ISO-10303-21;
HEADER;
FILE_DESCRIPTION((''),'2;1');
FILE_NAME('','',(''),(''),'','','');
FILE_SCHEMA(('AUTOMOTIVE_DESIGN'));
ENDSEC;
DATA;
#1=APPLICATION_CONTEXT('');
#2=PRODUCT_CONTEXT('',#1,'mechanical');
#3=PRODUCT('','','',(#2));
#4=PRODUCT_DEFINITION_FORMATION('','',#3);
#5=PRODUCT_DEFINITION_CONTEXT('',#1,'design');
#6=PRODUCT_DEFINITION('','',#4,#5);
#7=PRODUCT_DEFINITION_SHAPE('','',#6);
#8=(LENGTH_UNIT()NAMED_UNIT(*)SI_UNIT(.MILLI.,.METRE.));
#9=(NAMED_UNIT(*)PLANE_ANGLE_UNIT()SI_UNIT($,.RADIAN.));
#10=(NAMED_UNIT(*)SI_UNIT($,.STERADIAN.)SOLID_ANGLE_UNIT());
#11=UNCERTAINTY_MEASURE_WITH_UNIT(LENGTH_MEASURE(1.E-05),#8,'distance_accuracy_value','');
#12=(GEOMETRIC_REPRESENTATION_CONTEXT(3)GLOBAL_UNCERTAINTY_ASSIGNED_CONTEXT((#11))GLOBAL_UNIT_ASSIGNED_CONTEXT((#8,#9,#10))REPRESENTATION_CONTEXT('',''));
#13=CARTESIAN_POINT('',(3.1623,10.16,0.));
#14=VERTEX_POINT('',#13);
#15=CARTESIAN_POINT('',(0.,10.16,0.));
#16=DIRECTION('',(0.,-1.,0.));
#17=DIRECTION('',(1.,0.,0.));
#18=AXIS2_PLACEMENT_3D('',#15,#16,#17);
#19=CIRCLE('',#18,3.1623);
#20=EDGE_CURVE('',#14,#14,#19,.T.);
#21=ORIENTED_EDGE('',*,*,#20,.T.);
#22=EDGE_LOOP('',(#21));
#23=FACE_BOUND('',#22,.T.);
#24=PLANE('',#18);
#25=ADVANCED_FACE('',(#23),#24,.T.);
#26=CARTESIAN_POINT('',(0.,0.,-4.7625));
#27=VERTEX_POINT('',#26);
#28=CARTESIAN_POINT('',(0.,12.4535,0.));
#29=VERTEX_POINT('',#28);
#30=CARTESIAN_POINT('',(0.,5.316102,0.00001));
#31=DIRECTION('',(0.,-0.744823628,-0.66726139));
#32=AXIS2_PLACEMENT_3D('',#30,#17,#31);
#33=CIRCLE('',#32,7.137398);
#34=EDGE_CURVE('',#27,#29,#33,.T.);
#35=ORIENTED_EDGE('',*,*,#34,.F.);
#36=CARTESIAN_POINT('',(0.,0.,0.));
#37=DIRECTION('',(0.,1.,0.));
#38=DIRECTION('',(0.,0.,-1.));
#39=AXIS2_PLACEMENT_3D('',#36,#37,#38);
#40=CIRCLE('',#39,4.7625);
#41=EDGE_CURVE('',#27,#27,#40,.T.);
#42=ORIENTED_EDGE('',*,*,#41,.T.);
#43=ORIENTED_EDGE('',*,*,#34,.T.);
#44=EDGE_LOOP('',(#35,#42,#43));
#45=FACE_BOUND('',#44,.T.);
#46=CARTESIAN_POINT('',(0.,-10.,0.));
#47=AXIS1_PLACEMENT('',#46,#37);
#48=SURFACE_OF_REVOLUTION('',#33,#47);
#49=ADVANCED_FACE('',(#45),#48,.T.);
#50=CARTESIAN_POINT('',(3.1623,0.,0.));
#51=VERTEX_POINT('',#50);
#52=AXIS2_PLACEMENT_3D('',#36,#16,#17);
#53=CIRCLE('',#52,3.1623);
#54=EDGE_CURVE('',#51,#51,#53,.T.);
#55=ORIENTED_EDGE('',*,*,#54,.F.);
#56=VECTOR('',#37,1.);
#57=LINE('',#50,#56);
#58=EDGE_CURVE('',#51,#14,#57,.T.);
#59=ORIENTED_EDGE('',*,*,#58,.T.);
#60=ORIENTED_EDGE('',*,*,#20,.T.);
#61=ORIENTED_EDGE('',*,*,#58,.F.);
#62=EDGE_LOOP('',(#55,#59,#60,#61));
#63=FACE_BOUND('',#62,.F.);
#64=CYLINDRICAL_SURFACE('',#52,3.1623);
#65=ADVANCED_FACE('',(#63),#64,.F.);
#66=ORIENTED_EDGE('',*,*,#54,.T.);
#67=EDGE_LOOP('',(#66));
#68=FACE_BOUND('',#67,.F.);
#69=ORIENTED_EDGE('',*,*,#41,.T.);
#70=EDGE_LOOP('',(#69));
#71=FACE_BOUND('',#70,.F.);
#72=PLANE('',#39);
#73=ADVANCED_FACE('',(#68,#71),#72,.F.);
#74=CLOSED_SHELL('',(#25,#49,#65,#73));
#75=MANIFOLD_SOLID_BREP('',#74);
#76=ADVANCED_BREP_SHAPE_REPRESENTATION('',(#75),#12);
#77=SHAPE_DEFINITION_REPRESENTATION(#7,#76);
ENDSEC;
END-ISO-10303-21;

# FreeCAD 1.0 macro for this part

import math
import FreeCAD as App
import Part
import Sketcher
from FreeCAD import Vector
Q = App.Units.Quantity

doc = App.newDocument("Part")
params = doc.addObject("Spreadsheet::Sheet", "Params")
for row, (alias, value) in enumerate([
    ("sketch1_radius", "0.281 in"),
    ("sketch1_height", "0.1875 in"),
    ("revolution_angle", "360 deg"),
    ("sketch2_diameter", "0.249 in"),
    ("pocket1_length", "0.4 in"),
], start=1):
    params.set(f"A{row}", alias)
    params.set(f"B{row}", "=" + value)
    params.setAlias(f"B{row}", alias)

body = doc.addObject("PartDesign::Body", "Body")

sketch1 = body.newObject("Sketcher::SketchObject", "Sketch")
sketch1.AttachmentSupport = (doc.getObject("YZ_Plane"), [""])
sketch1.MapMode = "FlatFace"
sketch1.addGeometry(Part.LineSegment(Vector(12.4535, 0, 0), Vector(0, 0, 0)), False)
sketch1.addGeometry(Part.LineSegment(Vector(0, 0, 0), Vector(0, -4.7625, 0)), False)
sketch1.addGeometry(Part.ArcOfCircle(Part.Circle(Vector(5.3161, 0, 0), Vector(0, 0, 1), 7.137389), math.radians(-138.143998), math.radians(0)), False)
sketch1.addConstraint(Sketcher.Constraint("Coincident", 0, 2, 1, 1))
sketch1.addConstraint(Sketcher.Constraint("Coincident", 1, 2, 2, 1))
sketch1.addConstraint(Sketcher.Constraint("Coincident", 2, 2, 0, 1))
sketch1.addConstraint(Sketcher.Constraint("Horizontal", 0))
sketch1.addConstraint(Sketcher.Constraint("Vertical", 1))
sketch1.addConstraint(Sketcher.Constraint("Coincident", 0, 2, -1, 1))
sketch1.addConstraint(Sketcher.Constraint("PointOnObject", 2, 3, -1))
sketch1.addConstraint(Sketcher.Constraint("Radius", 2, Q("0.281 in")))
sketch1.addConstraint(Sketcher.Constraint("DistanceY", 1, 2, 1, 1, Q("0.1875 in")))
sketch1.setExpression("Constraints[7]", "Params.sketch1_radius")
sketch1.setExpression("Constraints[8]", "Params.sketch1_height")
revolution = body.newObject("PartDesign::Revolution", "Revolution")
revolution.Profile = sketch1
revolution.ReferenceAxis = (sketch1, ["H_Axis"])
revolution.setExpression("Angle", "Params.revolution_angle")

sketch2 = body.newObject("Sketcher::SketchObject", "Sketch001")
sketch2.AttachmentSupport = (doc.getObject("XZ_Plane"), [""])
sketch2.MapMode = "FlatFace"
sketch2.addGeometry(Part.Circle(Vector(0, 0, 0), Vector(0, 0, 1), 3.1623), False)
sketch2.addConstraint(Sketcher.Constraint("Coincident", 0, 3, -1, 1))
sketch2.addConstraint(Sketcher.Constraint("Diameter", 0, Q("0.249 in")))
sketch2.setExpression("Constraints[1]", "Params.sketch2_diameter")
pocket1 = body.newObject("PartDesign::Pocket", "Pocket")
pocket1.Profile = sketch2
pocket1.setExpression("Length", "Params.pocket1_length")

doc.recompute()
